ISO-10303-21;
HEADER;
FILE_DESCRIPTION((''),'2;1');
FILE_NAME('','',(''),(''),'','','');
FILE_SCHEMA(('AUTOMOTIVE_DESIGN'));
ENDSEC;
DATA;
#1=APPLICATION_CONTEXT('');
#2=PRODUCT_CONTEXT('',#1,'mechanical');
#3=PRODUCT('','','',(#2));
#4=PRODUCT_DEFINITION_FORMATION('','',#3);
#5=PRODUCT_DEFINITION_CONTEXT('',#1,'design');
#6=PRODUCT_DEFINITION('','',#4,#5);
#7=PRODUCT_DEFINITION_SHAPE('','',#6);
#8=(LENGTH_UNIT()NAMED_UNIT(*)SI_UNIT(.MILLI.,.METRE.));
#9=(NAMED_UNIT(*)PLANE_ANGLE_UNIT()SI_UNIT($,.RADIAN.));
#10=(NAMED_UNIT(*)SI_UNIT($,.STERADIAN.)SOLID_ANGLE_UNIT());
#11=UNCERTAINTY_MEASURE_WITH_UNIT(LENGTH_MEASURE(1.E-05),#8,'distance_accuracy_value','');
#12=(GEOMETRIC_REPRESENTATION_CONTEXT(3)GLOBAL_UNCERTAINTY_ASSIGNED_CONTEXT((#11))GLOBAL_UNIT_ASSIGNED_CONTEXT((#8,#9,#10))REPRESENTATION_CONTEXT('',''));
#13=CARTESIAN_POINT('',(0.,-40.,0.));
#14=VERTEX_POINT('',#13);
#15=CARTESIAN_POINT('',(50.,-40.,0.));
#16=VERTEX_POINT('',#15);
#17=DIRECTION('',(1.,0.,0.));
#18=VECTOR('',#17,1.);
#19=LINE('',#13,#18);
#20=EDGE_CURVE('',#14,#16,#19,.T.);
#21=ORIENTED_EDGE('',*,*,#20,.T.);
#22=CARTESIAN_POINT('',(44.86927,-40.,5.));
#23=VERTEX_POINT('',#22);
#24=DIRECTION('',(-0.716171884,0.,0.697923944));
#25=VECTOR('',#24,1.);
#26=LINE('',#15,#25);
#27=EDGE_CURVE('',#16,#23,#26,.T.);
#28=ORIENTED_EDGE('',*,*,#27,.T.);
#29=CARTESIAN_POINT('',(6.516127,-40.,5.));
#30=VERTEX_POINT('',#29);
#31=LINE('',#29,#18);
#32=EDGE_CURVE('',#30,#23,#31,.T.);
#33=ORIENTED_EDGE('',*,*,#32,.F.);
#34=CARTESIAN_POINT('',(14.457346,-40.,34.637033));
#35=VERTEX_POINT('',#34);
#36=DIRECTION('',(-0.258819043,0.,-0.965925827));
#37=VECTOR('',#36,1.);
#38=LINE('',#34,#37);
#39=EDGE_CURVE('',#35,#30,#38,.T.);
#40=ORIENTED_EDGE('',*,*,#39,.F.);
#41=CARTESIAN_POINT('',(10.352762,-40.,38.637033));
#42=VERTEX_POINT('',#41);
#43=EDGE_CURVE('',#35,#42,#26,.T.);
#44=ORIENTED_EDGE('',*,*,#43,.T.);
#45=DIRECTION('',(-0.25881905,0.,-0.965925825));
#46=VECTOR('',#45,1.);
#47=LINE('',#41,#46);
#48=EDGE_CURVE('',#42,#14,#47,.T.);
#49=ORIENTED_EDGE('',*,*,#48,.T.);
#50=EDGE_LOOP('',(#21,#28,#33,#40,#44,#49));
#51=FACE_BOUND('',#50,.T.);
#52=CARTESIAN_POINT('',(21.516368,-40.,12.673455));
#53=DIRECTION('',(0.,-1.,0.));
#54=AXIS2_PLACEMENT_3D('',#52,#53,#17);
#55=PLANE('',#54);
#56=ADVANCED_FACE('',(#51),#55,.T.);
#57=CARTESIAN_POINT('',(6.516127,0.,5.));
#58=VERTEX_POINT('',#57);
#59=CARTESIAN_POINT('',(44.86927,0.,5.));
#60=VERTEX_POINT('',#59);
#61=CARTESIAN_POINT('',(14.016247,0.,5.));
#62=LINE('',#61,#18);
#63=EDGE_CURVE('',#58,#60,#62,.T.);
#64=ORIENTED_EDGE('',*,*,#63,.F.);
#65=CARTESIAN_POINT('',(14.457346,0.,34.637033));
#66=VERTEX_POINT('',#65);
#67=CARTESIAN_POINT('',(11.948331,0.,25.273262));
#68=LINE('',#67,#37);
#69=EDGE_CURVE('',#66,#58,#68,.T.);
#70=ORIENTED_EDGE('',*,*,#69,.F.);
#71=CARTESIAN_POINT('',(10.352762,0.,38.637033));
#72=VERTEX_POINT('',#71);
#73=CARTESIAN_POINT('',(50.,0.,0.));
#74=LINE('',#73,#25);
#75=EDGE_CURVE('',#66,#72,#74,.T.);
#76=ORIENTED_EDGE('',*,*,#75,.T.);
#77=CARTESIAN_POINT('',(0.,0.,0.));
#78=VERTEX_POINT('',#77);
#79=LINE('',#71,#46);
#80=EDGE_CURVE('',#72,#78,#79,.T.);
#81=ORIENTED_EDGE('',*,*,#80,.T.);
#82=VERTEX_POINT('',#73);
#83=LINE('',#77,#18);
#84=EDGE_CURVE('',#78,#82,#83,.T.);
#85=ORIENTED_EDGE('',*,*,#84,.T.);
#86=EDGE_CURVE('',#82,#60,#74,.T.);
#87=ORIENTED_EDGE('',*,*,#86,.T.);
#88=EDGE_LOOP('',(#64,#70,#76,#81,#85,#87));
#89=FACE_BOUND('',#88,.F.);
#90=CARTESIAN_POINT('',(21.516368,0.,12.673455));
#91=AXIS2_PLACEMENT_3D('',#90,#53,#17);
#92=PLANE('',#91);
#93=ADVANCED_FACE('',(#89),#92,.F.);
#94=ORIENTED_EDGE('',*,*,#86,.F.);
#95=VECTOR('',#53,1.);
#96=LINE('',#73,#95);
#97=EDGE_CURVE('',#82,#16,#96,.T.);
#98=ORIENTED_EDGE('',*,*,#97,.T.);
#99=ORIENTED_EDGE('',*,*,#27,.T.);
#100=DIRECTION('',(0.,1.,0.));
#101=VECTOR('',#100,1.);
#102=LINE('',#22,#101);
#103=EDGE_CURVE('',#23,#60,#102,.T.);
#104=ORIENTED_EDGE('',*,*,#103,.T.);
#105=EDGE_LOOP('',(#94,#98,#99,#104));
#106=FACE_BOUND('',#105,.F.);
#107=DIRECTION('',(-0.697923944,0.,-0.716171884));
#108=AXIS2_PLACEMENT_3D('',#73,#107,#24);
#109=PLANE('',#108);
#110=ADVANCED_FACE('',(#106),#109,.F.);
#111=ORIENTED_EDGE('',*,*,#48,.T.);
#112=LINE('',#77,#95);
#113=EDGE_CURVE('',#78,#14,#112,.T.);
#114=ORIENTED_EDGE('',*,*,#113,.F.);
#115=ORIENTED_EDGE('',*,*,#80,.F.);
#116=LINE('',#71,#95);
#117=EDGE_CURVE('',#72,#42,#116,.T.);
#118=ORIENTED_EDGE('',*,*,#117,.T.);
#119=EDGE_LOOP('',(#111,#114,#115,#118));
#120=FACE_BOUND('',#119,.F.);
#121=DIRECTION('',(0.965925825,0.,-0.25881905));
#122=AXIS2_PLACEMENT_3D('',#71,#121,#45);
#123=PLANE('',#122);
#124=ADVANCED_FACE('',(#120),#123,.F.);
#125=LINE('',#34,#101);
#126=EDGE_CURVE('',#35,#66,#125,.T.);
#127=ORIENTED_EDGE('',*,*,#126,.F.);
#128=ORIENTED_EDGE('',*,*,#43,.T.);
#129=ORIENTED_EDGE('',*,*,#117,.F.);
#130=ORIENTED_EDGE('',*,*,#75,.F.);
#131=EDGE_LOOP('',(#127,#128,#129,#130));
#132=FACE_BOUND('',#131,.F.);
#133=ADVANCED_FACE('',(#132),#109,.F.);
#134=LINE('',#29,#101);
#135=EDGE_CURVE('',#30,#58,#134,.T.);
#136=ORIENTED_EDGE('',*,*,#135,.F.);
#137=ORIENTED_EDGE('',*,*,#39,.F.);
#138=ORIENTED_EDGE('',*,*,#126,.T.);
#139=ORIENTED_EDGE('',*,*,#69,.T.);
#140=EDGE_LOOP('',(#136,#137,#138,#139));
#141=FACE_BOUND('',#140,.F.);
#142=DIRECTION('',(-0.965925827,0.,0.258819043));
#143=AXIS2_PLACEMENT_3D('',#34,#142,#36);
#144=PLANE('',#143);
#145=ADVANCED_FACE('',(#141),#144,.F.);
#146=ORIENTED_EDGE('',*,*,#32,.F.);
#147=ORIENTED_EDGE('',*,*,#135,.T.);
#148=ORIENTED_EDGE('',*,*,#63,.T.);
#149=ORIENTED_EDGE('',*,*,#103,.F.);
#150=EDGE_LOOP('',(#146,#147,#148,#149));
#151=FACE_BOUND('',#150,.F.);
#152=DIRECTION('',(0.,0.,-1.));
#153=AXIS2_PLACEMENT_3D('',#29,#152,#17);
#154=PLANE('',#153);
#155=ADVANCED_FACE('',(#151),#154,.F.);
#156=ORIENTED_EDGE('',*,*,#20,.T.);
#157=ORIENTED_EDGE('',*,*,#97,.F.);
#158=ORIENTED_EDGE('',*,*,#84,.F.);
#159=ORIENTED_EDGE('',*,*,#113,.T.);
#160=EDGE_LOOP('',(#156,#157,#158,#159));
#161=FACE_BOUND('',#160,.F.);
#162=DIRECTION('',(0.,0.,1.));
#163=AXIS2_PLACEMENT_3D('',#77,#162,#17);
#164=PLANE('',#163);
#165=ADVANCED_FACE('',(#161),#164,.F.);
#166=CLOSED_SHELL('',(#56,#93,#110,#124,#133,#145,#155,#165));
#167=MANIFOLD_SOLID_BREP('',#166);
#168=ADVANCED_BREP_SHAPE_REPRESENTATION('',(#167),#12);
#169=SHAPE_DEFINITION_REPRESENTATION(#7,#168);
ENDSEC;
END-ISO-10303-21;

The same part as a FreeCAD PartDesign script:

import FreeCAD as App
import Part
import Sketcher
from FreeCAD import Vector
Q = App.Units.Quantity

doc = App.newDocument("Part")
params = doc.addObject("Spreadsheet::Sheet", "Params")
for row, (alias, value) in enumerate([
    ("sketch1_width", "50 mm"),
    ("sketch1_length", "40 mm"),
    ("pad1_length", "40 mm"),
    ("pocket1_length", "53 mm"),
], start=1):
    params.set(f"A{row}", alias)
    params.set(f"B{row}", "=" + value)
    params.setAlias(f"B{row}", alias)

body = doc.addObject("PartDesign::Body", "Body")

# Sketch on XZ plane
sketch1 = doc.addObject("Sketcher::SketchObject", "Sketch")
body.addObject(sketch1)
sketch1.AttachmentSupport = (doc.XZ_Plane, [""])
sketch1.MapMode = "FlatFace"
sketch1.addGeometry([
    Part.LineSegment(Vector(10.352762, 38.637033, 0), Vector(0, 0, 0)),
    Part.LineSegment(Vector(0, 0, 0), Vector(50, 0, 0)),
    Part.LineSegment(Vector(50, 0, 0), Vector(10.352762, 38.637033, 0)),
], False)
sketch1.addConstraint([
    Sketcher.Constraint("Coincident", 0, 2, 1, 1),
    Sketcher.Constraint("Coincident", 1, 2, 2, 1),
    Sketcher.Constraint("Coincident", 2, 2, 0, 1),
    Sketcher.Constraint("Horizontal", 1),
    Sketcher.Constraint("Coincident", 0, 2, -1, 1),
    Sketcher.Constraint("DistanceX", 1, 1, 1, 2, Q("50 mm")),
    Sketcher.Constraint("Angle", 0, Q("-105 deg")),
    Sketcher.Constraint("Distance", 0, Q("40 mm")),
])
sketch1.setExpression("Constraints[5]", "Params.sketch1_width")
sketch1.setExpression("Constraints[7]", "Params.sketch1_length")
pad1 = doc.addObject("PartDesign::Pad", "Pad")
body.addObject(pad1)
pad1.Profile = sketch1
pad1.setExpression("Length", "Params.pad1_length")

# Sketch on XZ plane
sketch2 = doc.addObject("Sketcher::SketchObject", "Sketch001")
body.addObject(sketch2)
sketch2.AttachmentSupport = (doc.XZ_Plane, [""])
sketch2.MapMode = "FlatFace"
sketch2.AttachmentOffset = App.Placement(Vector(0, 0, 40), App.Rotation())
sketch2.addGeometry([
    Part.LineSegment(Vector(44.86927, 5, 0), Vector(14.457346, 34.637033, 0)),
    Part.LineSegment(Vector(14.457346, 34.637033, 0), Vector(6.516127, 5, 0)),
    Part.LineSegment(Vector(6.516127, 5, 0), Vector(44.86927, 5, 0)),
], False)
sketch2.addConstraint([
    Sketcher.Constraint("Coincident", 0, 2, 1, 1),
    Sketcher.Constraint("Coincident", 1, 2, 2, 1),
    Sketcher.Constraint("Coincident", 2, 2, 0, 1),
    Sketcher.Constraint("Horizontal", 2),
    Sketcher.Constraint("Angle", 1, Q("-105 deg")),
    Sketcher.Constraint("DistanceY", -1, 1, 1, 2, Q("5 mm")),
    Sketcher.Constraint("Distance", 0, Q("42.46456 mm")),
    Sketcher.Constraint("DistanceX", 2, 1, 2, 2, Q("38.353143 mm")),
    Sketcher.Constraint("DistanceX", -1, 1, 2, 2, Q("44.86927 mm")),
])
pocket1 = doc.addObject("PartDesign::Pocket", "Pocket")
body.addObject(pocket1)
pocket1.Profile = sketch2
pocket1.setExpression("Length", "Params.pocket1_length")

doc.recompute()
